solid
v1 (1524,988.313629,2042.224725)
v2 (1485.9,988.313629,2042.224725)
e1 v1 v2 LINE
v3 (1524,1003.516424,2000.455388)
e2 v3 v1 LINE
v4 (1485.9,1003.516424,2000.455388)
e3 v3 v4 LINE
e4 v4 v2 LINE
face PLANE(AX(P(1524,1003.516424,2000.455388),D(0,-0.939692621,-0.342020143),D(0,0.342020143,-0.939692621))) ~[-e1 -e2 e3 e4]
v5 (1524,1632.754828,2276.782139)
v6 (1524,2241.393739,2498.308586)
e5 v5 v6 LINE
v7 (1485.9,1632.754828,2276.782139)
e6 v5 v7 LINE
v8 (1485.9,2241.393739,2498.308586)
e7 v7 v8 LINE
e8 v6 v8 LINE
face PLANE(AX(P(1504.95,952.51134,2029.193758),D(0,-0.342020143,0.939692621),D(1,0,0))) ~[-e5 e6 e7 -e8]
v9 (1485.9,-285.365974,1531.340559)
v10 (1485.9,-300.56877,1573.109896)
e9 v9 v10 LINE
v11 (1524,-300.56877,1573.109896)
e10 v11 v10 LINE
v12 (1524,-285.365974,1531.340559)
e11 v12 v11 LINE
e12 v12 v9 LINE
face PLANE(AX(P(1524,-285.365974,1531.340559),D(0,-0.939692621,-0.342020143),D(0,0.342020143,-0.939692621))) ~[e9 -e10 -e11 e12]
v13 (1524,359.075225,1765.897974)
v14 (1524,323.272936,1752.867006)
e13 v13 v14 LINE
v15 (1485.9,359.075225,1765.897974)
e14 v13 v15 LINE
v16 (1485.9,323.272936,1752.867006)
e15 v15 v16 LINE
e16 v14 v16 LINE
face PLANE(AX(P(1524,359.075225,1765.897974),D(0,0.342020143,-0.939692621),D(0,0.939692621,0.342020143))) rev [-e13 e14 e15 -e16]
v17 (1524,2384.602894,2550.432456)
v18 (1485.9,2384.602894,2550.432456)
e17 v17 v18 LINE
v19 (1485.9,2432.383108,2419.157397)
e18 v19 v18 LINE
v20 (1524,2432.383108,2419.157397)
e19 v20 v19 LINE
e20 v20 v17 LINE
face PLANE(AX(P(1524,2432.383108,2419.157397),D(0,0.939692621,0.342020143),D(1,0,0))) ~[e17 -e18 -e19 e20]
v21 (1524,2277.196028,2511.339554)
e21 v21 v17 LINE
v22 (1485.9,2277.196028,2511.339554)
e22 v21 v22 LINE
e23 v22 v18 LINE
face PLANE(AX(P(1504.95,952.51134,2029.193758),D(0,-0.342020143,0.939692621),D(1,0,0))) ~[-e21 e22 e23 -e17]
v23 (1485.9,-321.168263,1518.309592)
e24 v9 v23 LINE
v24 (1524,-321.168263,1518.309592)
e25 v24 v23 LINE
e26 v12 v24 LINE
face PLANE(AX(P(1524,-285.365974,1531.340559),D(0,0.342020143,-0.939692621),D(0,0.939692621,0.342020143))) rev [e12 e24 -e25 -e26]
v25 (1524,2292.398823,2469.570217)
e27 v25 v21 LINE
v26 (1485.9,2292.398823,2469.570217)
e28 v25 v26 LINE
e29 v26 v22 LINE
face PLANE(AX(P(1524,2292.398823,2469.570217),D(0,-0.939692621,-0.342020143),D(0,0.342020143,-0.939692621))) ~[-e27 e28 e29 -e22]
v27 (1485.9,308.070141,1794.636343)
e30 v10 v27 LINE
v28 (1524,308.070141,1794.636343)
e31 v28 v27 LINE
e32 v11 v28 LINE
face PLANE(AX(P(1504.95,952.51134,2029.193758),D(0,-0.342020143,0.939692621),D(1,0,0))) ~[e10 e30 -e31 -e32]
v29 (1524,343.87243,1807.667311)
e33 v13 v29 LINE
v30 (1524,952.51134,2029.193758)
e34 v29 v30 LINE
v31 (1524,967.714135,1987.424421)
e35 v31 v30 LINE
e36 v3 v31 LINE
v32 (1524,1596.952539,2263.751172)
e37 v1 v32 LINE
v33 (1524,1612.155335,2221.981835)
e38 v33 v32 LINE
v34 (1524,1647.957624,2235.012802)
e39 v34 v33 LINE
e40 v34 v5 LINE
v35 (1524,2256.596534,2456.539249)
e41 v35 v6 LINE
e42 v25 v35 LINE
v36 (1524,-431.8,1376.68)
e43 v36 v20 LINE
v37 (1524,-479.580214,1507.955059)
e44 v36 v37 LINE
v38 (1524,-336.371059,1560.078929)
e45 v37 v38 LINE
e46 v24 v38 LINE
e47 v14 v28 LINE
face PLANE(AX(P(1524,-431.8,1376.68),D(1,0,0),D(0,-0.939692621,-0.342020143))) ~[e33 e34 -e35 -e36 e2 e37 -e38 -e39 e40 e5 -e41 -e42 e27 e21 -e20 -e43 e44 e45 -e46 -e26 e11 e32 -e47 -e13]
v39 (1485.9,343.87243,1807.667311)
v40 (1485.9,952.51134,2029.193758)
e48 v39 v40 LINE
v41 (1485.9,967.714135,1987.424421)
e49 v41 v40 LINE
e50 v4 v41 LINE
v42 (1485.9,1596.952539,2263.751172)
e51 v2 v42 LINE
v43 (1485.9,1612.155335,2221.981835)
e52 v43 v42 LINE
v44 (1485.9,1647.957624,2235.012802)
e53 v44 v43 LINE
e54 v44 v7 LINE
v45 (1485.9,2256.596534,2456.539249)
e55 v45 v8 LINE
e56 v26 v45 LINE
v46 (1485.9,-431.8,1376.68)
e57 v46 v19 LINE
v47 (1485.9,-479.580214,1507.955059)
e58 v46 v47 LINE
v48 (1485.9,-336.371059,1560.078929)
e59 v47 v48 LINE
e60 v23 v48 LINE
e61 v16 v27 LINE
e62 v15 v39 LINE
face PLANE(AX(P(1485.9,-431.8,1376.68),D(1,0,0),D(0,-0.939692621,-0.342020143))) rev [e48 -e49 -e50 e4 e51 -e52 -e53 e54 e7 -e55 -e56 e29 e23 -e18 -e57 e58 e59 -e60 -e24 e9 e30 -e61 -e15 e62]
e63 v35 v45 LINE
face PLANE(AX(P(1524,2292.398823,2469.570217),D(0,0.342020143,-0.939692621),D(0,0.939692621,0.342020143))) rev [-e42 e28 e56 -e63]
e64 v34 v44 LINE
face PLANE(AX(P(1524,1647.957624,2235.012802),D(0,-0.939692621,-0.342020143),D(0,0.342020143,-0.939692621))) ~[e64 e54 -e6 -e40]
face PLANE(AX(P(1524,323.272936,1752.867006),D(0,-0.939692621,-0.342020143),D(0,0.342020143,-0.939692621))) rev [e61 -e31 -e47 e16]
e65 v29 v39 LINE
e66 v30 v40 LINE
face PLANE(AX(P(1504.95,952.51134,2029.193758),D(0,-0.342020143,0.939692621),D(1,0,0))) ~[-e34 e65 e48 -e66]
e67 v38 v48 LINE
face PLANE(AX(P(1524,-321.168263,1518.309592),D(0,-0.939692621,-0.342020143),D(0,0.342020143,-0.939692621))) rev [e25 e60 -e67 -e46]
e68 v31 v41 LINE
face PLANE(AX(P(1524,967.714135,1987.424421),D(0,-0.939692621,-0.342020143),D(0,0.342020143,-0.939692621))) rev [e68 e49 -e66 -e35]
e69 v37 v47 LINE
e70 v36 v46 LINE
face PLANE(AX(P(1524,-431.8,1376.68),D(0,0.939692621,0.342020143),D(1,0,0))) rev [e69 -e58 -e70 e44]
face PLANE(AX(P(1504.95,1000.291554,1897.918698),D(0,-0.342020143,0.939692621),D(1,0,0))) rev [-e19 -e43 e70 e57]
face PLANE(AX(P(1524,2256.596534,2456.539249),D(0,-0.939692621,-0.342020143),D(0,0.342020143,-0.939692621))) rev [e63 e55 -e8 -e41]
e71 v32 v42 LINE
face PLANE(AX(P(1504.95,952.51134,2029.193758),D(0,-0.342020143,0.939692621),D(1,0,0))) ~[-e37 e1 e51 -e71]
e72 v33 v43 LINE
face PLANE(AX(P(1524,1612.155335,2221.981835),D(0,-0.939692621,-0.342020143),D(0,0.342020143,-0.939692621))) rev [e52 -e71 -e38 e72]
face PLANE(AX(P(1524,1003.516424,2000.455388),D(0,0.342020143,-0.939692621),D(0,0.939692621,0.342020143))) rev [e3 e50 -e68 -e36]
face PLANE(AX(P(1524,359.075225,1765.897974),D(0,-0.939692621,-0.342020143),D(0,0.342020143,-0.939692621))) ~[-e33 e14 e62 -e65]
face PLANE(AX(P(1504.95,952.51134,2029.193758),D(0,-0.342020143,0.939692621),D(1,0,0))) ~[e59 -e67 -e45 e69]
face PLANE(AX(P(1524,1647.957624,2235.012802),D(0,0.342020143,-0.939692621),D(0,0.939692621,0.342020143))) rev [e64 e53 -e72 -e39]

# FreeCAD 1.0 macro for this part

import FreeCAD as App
import Part
import Sketcher

V = App.Vector
Q = App.Units.Quantity

doc = App.newDocument("Part")
body = doc.addObject("PartDesign::Body", "Body")

# Sketch on XY plane
sketch1 = body.newObject("Sketcher::SketchObject", "Sketch")
sketch1.AttachmentSupport = (doc.getObject("XY_Plane"), [""])
sketch1.MapMode = "FlatFace"
sketch1.addGeometry([
    Part.LineSegment(V(0, 3048, 0), V(0, 0, 0)),
    Part.LineSegment(V(0, 0, 0), V(38, 0, 0)),
    Part.LineSegment(V(38, 0, 0), V(38, 3048, 0)),
    Part.LineSegment(V(38, 3048, 0), V(0, 3048, 0)),
], False)
sketch1.addConstraint([
    Sketcher.Constraint("Coincident", 0, 2, 1, 1),
    Sketcher.Constraint("Coincident", 1, 2, 2, 1),
    Sketcher.Constraint("Coincident", 2, 2, 3, 1),
    Sketcher.Constraint("Coincident", 3, 2, 0, 1),
    Sketcher.Constraint("Vertical", 0),
    Sketcher.Constraint("Horizontal", 1),
    Sketcher.Constraint("Vertical", 2),
    Sketcher.Constraint("Horizontal", 3),
    Sketcher.Constraint("Coincident", 0, 2, -1, 1),
    Sketcher.Constraint("DistanceY", 0, 2, 0, 1, Q("120 in")),
    Sketcher.Constraint("DistanceX", 1, 1, 1, 2, Q("1.5 in")),
])
pad1 = body.newObject("PartDesign::Pad", "Pad")
pad1.Profile = sketch1
pad1.Length = Q("5.5 in")
body2 = doc.addObject("PartDesign::Body", "Body001")
doc.recompute()

body.Placement = App.Placement(V(0, 0, 0), App.Rotation(V(1, 0, 0), 20))
boolean = body2.newObject("PartDesign::Boolean", "Boolean")
boolean.Type = "Fuse"
boolean.addObjects([body])
body3 = doc.addObject("PartDesign::Body", "Body002")
doc.recompute()

body2.Placement = App.Placement(V(0, -431.8, 1376.68), App.Rotation(V(0, 0, 1), 0))
boolean2 = body3.newObject("PartDesign::Boolean", "Boolean001")
boolean2.Type = "Fuse"
boolean2.addObjects([body2])

# Sketch on YZ plane
sketch2 = body3.newObject("Sketcher::SketchObject", "Sketch001")
sketch2.AttachmentSupport = (doc.getObject("YZ_Plane002"), [""])
sketch2.MapMode = "FlatFace"
sketch2.addGeometry([
    Part.LineSegment(V(-301, 1573, 0), V(-285, 1531, 0)),
    Part.LineSegment(V(-285, 1531, 0), V(-321, 1518, 0)),
    Part.LineSegment(V(-321, 1518, 0), V(-336, 1560, 0)),
    Part.LineSegment(V(-336, 1560, 0), V(-301, 1573, 0)),
], False)
sketch2.addConstraint([
    Sketcher.Constraint("Coincident", 0, 2, 1, 1),
    Sketcher.Constraint("Coincident", 1, 2, 2, 1),
    Sketcher.Constraint("Coincident", 2, 2, 3, 1),
    Sketcher.Constraint("Coincident", 3, 2, 0, 1),
    Sketcher.Constraint("Perpendicular", 0, 1),
    Sketcher.Constraint("Perpendicular", 1, 2),
    Sketcher.Constraint("Perpendicular", 2, 3),
    Sketcher.Constraint("Angle", 0, Q("-70 deg")),
    Sketcher.Constraint("Distance", 1, Q("1.5 in")),
    Sketcher.Constraint("Distance", 0, Q("1.75 in")),
    Sketcher.Constraint("DistanceY", -1, 1, 0, 2, Q("1531.340559 mm")),
    Sketcher.Constraint("DistanceX", 2, 2, -1, 1, Q("336.371059 mm")),
])
pocket1 = body3.newObject("PartDesign::Pocket", "Pocket")
pocket1.Profile = sketch2
pocket1.Type = "ThroughAll"
pocket1.Reversed = True
doc.recompute()

datumline = body3.newObject("PartDesign::Line", "DatumLine")
datumline.Placement = App.Placement(V(0, 0, 0), App.Rotation(V(0, 0, 1), V(0, 0.939692621, 0.342020143)))
linearpattern = body3.newObject("PartDesign::LinearPattern", "LinearPattern")
linearpattern.Originals = [pocket1]
linearpattern.Direction = (datumline, [""])
linearpattern.Mode = "offset"
linearpattern.Offset = Q("27 in")
linearpattern.Occurrences = 5
body3.Tip = linearpattern
body4 = doc.addObject("PartDesign::Body", "Body003")
doc.recompute()

mirroring = doc.addObject("Part::Mirroring", "Mirroring")
mirroring.Source = body3
mirroring.Base = V(762, 0, 0)
mirroring.Normal = V(1, 0, 0)
body4.BaseFeature = mirroring
doc.recompute()
body3.Visibility = False
mirroring.Visibility = False

doc.recompute()
